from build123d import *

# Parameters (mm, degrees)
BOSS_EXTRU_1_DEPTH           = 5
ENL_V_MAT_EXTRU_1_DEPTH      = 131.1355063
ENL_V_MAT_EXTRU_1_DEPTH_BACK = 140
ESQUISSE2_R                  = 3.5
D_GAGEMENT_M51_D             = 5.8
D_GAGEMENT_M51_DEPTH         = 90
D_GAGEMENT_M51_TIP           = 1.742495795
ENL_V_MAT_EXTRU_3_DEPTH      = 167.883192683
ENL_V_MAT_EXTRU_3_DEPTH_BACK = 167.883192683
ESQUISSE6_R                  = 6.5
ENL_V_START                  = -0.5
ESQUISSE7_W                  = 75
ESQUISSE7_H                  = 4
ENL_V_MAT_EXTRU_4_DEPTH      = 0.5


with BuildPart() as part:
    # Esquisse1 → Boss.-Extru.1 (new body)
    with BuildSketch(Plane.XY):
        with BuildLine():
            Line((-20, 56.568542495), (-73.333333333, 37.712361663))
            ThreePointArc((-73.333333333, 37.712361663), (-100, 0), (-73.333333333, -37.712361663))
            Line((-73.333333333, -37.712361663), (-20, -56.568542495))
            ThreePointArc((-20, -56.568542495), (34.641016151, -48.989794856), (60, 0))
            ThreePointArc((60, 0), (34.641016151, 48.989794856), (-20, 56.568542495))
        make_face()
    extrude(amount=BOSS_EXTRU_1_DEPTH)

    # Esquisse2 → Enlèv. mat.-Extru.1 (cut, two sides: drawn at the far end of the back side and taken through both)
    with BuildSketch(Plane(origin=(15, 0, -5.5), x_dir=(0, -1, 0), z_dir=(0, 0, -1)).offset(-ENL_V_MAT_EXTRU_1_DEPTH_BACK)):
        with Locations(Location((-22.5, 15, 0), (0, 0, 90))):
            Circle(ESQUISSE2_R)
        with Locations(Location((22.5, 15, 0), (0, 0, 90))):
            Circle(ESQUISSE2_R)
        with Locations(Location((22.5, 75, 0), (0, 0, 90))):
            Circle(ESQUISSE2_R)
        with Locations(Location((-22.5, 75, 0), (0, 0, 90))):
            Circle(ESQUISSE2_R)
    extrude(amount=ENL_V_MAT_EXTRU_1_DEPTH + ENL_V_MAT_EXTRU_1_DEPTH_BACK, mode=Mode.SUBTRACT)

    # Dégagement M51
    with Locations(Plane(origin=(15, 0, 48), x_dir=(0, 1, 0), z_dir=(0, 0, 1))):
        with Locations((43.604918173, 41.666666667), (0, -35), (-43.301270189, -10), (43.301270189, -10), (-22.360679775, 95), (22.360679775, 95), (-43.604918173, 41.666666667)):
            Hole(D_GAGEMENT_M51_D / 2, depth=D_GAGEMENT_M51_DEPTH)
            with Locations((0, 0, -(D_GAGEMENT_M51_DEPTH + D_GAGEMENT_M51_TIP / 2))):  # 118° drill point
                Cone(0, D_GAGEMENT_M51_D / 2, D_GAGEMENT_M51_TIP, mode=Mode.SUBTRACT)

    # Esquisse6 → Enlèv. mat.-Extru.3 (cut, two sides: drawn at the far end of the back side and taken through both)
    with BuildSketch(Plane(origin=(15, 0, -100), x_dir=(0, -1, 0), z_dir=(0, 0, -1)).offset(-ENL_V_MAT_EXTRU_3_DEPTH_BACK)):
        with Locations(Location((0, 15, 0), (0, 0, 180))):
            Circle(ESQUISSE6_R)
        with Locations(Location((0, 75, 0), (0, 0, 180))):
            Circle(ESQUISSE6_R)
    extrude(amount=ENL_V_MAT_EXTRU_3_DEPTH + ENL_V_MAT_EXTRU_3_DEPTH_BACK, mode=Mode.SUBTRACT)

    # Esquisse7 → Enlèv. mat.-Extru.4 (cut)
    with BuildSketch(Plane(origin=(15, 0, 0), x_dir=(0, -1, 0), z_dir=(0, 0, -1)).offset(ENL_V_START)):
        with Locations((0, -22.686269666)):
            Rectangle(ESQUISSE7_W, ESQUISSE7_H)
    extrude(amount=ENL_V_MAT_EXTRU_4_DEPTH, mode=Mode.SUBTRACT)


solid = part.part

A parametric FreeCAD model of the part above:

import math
import FreeCAD as App
import Part
import Sketcher
Q = App.Units.Quantity

doc = App.newDocument("Part")
body = doc.addObject("PartDesign::Body", "Body")

# Sketch on XY plane
sketch1 = body.newObject("Sketcher::SketchObject", "Sketch")
sketch1.AttachmentSupport = (doc.getObject("XY_Plane"), [""])
sketch1.MapMode = "FlatFace"
sketch1.addGeometry([
    Part.LineSegment(App.Vector(-20, 56.568542, 0), App.Vector(-73.333333, 37.712362, 0)),  # 0
    Part.ArcOfCircle(Part.Circle(App.Vector(-60, 0, 0), App.Vector(0, 0, 1), 40), math.radians(109.471221), math.radians(250.528779)),  # 1
    Part.LineSegment(App.Vector(-73.333333, -37.712362, 0), App.Vector(-20, -56.568542, 0)),  # 2
    Part.ArcOfCircle(Part.Circle(App.Vector(0, 0, 0), App.Vector(0, 0, 1), 60), math.radians(-109.471221), math.radians(0)),  # 3
    Part.ArcOfCircle(Part.Circle(App.Vector(0, 0, 0), App.Vector(0, 0, 1), 60), math.radians(0), math.radians(109.471221)),  # 4
], False)
sketch1.addConstraint([
    Sketcher.Constraint("Tangent", 0, 2, 1, 1),
    Sketcher.Constraint("Tangent", 1, 2, 2, 1),
    Sketcher.Constraint("Tangent", 2, 2, 3, 1),
    Sketcher.Constraint("Tangent", 3, 2, 4, 1),
    Sketcher.Constraint("Tangent", 4, 2, 0, 1),
    Sketcher.Constraint("Coincident", 3, 3, -1, 1),
    Sketcher.Constraint("Equal", 3, 4),
    Sketcher.Constraint("PointOnObject", 1, 3, -1),
    Sketcher.Constraint("PointOnObject", 3, 2, -1),
    Sketcher.Constraint("Radius", 1, Q("40 mm")),
    Sketcher.Constraint("Radius", 3, Q("60 mm")),
    Sketcher.Constraint("DistanceX", 1, 3, -1, 1, Q("60 mm")),
])
pad1 = body.newObject("PartDesign::Pad", "Pad")
pad1.Profile = sketch1
pad1.Length = 5

# Sketch on XY plane
sketch2 = body.newObject("Sketcher::SketchObject", "Sketch001")
sketch2.AttachmentSupport = (doc.getObject("XY_Plane"), [""])
sketch2.MapMode = "FlatFace"
sketch2.AttachmentOffset = App.Placement(App.Vector(0, 0, -5.5), App.Rotation())
sketch2.addGeometry([
    Part.Circle(App.Vector(0, 22.5, 0), App.Vector(0, 0, 1), 3.5),
    Part.Circle(App.Vector(0, -22.5, 0), App.Vector(0, 0, 1), 3.5),
    Part.Circle(App.Vector(-60, -22.5, 0), App.Vector(0, 0, 1), 3.5),
    Part.Circle(App.Vector(-60, 22.5, 0), App.Vector(0, 0, 1), 3.5),
], False)
sketch2.addConstraint([
    Sketcher.Constraint("Equal", 0, 1),
    Sketcher.Constraint("Equal", 1, 2),
    Sketcher.Constraint("Equal", 2, 3),
    Sketcher.Constraint("Symmetric", 0, 3, 1, 3, -1, 1),
    Sketcher.Constraint("Symmetric", 2, 3, 3, 3, -1),
    Sketcher.Constraint("PointOnObject", 0, 3, -2),
    Sketcher.Constraint("Horizontal", 1, 3, 2, 3),
    Sketcher.Constraint("Diameter", 0, Q("7 mm")),
    Sketcher.Constraint("DistanceX", 2, 3, -1, 1, Q("60 mm")),
    Sketcher.Constraint("DistanceY", 1, 3, 0, 3, Q("45 mm")),
])
pocket1 = body.newObject("PartDesign::Pocket", "Pocket")
pocket1.Profile = sketch2
pocket1.Type = "ThroughAll"
pocket1.Midplane = True

# Sketch on XY plane
sketch3 = body.newObject("Sketcher::SketchObject", "Sketch002")
sketch3.AttachmentSupport = (doc.getObject("XY_Plane"), [""])
sketch3.MapMode = "FlatFace"
sketch3.AttachmentOffset = App.Placement(App.Vector(0, 0, 48), App.Rotation())
sketch3.addGeometry([
    Part.Circle(App.Vector(-26.666667, 43.604918, 0), App.Vector(0, 0, 1), 2.9),  # 0
    Part.Circle(App.Vector(50, 0, 0), App.Vector(0, 0, 1), 2.9),  # 1
    Part.Circle(App.Vector(25, -43.30127, 0), App.Vector(0, 0, 1), 2.9),  # 2
    Part.Circle(App.Vector(25, 43.30127, 0), App.Vector(0, 0, 1), 2.9),  # 3
    Part.Circle(App.Vector(-80, -22.36068, 0), App.Vector(0, 0, 1), 2.9),  # 4
    Part.Circle(App.Vector(-80, 22.36068, 0), App.Vector(0, 0, 1), 2.9),  # 5
    Part.Circle(App.Vector(-26.666667, -43.604918, 0), App.Vector(0, 0, 1), 2.9),  # 6
], False)
sketch3.addConstraint([
    Sketcher.Constraint("Equal", 0, 1),
    Sketcher.Constraint("Equal", 1, 2),
    Sketcher.Constraint("Equal", 2, 3),
    Sketcher.Constraint("Equal", 3, 4),
    Sketcher.Constraint("Equal", 4, 5),
    Sketcher.Constraint("Equal", 5, 6),
    Sketcher.Constraint("Symmetric", 2, 3, 3, 3, -1),
    Sketcher.Constraint("Symmetric", 4, 3, 5, 3, -1),
    Sketcher.Constraint("Symmetric", 0, 3, 6, 3, -1),
    Sketcher.Constraint("PointOnObject", 1, 3, -1),
    Sketcher.Constraint("Diameter", 0, Q("5.8 mm")),
    Sketcher.Constraint("DistanceX", -1, 1, 1, 3, Q("50 mm")),
    Sketcher.Constraint("DistanceX", -1, 1, 2, 3, Q("25 mm")),
    Sketcher.Constraint("DistanceX", 4, 3, -1, 1, Q("80 mm")),
    Sketcher.Constraint("DistanceY", -1, 1, 0, 3, Q("43.604918 mm")),
    Sketcher.Constraint("DistanceY", 2, 3, -1, 1, Q("43.30127 mm")),
    Sketcher.Constraint("DistanceY", 4, 3, -1, 1, Q("22.36068 mm")),
    Sketcher.Constraint("DistanceX", 0, 3, -1, 1, Q("26.666667 mm")),
])
doc.recompute()
hole = body.newObject("PartDesign::Hole", "Hole")
hole.Profile = sketch3
hole.ThreadType = "None"
hole.Diameter = 5.8
hole.DepthType = "Dimension"
hole.Depth = 90
hole.DrillPoint = "Angled"
hole.DrillPointAngle = 118

# Sketch on XY plane
sketch4 = body.newObject("Sketcher::SketchObject", "Sketch003")
sketch4.AttachmentSupport = (doc.getObject("XY_Plane"), [""])
sketch4.MapMode = "FlatFace"
sketch4.AttachmentOffset = App.Placement(App.Vector(0, 0, -100), App.Rotation())
sketch4.addGeometry([
    Part.Circle(App.Vector(0, 0, 0), App.Vector(0, 0, 1), 6.5),
    Part.Circle(App.Vector(-60, 0, 0), App.Vector(0, 0, 1), 6.5),
], False)
sketch4.addConstraint([
    Sketcher.Constraint("Coincident", 0, 3, -1, 1),
    Sketcher.Constraint("Equal", 0, 1),
    Sketcher.Constraint("PointOnObject", 1, 3, -1),
    Sketcher.Constraint("Diameter", 0, Q("13 mm")),
    Sketcher.Constraint("DistanceX", 1, 3, -1, 1, Q("60 mm")),
])
pocket2 = body.newObject("PartDesign::Pocket", "Pocket001")
pocket2.Profile = sketch4
pocket2.Type = "ThroughAll"
pocket2.Midplane = True

# Sketch on XY plane
sketch5 = body.newObject("Sketcher::SketchObject", "Sketch004")
sketch5.AttachmentSupport = (doc.getObject("XY_Plane"), [""])
sketch5.MapMode = "FlatFace"
sketch5.AttachmentOffset = App.Placement(App.Vector(0, 0, 0.5), App.Rotation())
sketch5.addGeometry([
    Part.LineSegment(App.Vector(35.68627, 37.5, 0), App.Vector(39.68627, 37.5, 0)),
    Part.LineSegment(App.Vector(39.68627, 37.5, 0), App.Vector(39.68627, -37.5, 0)),
    Part.LineSegment(App.Vector(39.68627, -37.5, 0), App.Vector(35.68627, -37.5, 0)),
    Part.LineSegment(App.Vector(35.68627, -37.5, 0), App.Vector(35.68627, 37.5, 0)),
], False)
sketch5.addConstraint([
    Sketcher.Constraint("Coincident", 0, 2, 1, 1),
    Sketcher.Constraint("Coincident", 1, 2, 2, 1),
    Sketcher.Constraint("Coincident", 2, 2, 3, 1),
    Sketcher.Constraint("Coincident", 3, 2, 0, 1),
    Sketcher.Constraint("Horizontal", 0),
    Sketcher.Constraint("Vertical", 1),
    Sketcher.Constraint("Horizontal", 2),
    Sketcher.Constraint("Vertical", 3),
    Sketcher.Constraint("DistanceX", 0, 1, 0, 2, Q("4 mm")),
    Sketcher.Constraint("DistanceY", 1, 2, 1, 1, Q("75 mm")),
    Sketcher.Constraint("DistanceY", -1, 1, 0, 2, Q("37.5 mm")),
    Sketcher.Constraint("DistanceX", -1, 1, 0, 2, Q("39.68627 mm")),
])
pocket3 = body.newObject("PartDesign::Pocket", "Pocket002")
pocket3.Profile = sketch5
pocket3.Length = 0.5

doc.recompute()
